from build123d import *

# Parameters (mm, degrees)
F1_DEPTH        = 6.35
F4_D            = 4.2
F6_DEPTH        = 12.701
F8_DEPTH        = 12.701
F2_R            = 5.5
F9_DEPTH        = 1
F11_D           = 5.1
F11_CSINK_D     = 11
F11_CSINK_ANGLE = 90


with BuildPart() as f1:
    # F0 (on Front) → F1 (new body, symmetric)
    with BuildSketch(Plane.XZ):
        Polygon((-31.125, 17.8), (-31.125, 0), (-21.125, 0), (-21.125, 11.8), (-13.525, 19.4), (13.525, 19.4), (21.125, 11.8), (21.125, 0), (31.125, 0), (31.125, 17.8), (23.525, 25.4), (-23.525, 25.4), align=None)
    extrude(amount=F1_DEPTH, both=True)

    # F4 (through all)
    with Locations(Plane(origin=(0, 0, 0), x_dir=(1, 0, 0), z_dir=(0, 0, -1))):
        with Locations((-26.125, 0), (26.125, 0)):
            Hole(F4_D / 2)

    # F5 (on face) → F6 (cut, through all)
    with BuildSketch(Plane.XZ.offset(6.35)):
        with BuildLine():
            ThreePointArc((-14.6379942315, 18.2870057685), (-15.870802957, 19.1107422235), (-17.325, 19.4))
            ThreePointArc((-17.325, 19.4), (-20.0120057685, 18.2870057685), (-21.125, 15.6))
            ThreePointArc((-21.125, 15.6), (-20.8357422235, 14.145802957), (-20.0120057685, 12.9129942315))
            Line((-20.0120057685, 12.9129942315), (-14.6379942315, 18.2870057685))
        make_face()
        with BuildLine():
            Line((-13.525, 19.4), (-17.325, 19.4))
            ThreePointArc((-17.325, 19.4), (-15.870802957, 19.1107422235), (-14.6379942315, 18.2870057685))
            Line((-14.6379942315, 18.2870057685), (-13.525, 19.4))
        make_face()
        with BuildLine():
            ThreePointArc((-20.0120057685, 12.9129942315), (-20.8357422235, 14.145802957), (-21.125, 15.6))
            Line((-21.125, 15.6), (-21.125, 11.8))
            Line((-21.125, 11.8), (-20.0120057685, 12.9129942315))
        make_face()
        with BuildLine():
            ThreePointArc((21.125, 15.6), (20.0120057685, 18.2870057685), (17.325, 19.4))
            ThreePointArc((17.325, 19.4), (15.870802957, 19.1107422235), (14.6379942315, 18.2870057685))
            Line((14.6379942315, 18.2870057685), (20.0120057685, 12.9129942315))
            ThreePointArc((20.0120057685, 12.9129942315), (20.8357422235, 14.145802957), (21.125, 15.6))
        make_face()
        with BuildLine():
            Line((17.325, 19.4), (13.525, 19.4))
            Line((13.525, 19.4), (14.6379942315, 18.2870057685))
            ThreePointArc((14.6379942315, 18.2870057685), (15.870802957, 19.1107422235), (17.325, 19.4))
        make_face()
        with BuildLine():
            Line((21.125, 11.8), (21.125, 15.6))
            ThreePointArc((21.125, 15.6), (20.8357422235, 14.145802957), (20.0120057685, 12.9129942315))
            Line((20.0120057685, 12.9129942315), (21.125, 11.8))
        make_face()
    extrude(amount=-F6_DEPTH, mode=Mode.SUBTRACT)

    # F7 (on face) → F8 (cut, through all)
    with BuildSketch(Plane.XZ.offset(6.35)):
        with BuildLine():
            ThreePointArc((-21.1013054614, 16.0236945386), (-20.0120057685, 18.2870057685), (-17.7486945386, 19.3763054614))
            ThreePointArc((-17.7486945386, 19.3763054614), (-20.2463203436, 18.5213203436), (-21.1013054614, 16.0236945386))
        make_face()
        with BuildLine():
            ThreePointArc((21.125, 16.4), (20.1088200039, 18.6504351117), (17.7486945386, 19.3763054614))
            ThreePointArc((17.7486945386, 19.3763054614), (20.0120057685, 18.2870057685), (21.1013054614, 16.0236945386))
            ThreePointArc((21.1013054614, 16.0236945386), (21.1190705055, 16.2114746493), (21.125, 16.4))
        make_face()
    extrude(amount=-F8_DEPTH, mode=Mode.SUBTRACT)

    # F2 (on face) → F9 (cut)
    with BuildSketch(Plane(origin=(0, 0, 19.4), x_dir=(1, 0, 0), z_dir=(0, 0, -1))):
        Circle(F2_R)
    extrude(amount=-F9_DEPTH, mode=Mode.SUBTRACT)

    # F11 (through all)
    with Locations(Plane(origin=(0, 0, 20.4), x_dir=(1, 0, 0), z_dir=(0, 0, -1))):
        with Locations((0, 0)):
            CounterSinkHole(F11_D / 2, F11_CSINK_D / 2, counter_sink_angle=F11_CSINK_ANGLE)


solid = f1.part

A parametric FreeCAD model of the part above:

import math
import FreeCAD as App
import Part
import Sketcher

V = App.Vector


def add_polygon(sketch, points):
    """Adds a closed chain of lines whose ends are joined by coincident constraints."""
    first, n = sketch.GeometryCount, len(points)
    for a, b in zip(points, points[1:] + points[:1]):
        sketch.addGeometry(Part.LineSegment(App.Vector(*a, 0), App.Vector(*b, 0)), False)
    for i in range(n):
        sketch.addConstraint(Sketcher.Constraint("Coincident", first + i, 2, first + (i + 1) % n, 1))

doc = App.newDocument("Part")
body = doc.addObject("PartDesign::Body", "Body")

sketch1 = body.newObject("Sketcher::SketchObject", "Sketch")
sketch1.AttachmentSupport = (doc.getObject("XZ_Plane"), [""])
sketch1.MapMode = "FlatFace"
add_polygon(sketch1, [(-31.125, 17.8), (-31.125, 0), (-21.125, 0), (-21.125, 11.8), (-13.525, 19.4), (13.525, 19.4), (21.125, 11.8), (21.125, 0), (31.125, 0), (31.125, 17.8), (23.525, 25.4), (-23.525, 25.4)])
sketch1.addConstraint([
    Sketcher.Constraint("Vertical", 0),
    Sketcher.Constraint("Horizontal", 1),
    Sketcher.Constraint("Vertical", 2),
    Sketcher.Constraint("Horizontal", 4),
    Sketcher.Constraint("Vertical", 6),
    Sketcher.Constraint("Horizontal", 7),
    Sketcher.Constraint("Vertical", 8),
    Sketcher.Constraint("Horizontal", 10),
    Sketcher.Constraint("Symmetric", 1, 2, 6, 2, -1, 1),
    Sketcher.Constraint("Symmetric", 0, 2, 7, 2, -2),
    Sketcher.Constraint("Perpendicular", 3, 5),
    Sketcher.Constraint("Parallel", 5, 9),
    Sketcher.Constraint("Perpendicular", 9, 11),
    Sketcher.Constraint("Horizontal", 2, 2, 5, 2),
    Sketcher.Constraint("Horizontal", 8, 2, 11, 2),
    Sketcher.Constraint("Equal", 3, 5),
    Sketcher.Constraint("Equal", 5, 9),
    Sketcher.Constraint("DistanceX", 1, 1, 1, 2, 10.0),
    Sketcher.Constraint("DistanceY", 0, 2, 0, 1, 17.8),
    Sketcher.Constraint("DistanceY", 2, 1, 2, 2, 11.8),
    Sketcher.Constraint("DistanceX", 4, 1, 4, 2, 27.05),
    Sketcher.Constraint("DistanceY", -1, 1, 3, 2, 19.4),
])
pad1 = body.newObject("PartDesign::Pad", "Pad")
pad1.Profile = sketch1
pad1.Length = 12.7
pad1.Midplane = True

sketch2 = body.newObject("Sketcher::SketchObject", "Sketch001")
sketch2.AttachmentSupport = (doc.getObject("XY_Plane"), [""])
sketch2.MapMode = "FlatFace"
sketch2.addGeometry([
    Part.Circle(V(-26.125, 0, 0), V(0, 0, 1), 2.1),
    Part.Circle(V(26.125, 0, 0), V(0, 0, 1), 2.1),
], False)
sketch2.addConstraint([
    Sketcher.Constraint("Equal", 0, 1),
    Sketcher.Constraint("Symmetric", 0, 3, 1, 3, -1, 1),
    Sketcher.Constraint("PointOnObject", 0, 3, -1),
    Sketcher.Constraint("Diameter", 0, 4.2),
    Sketcher.Constraint("DistanceX", 0, 3, 1, 3, 52.25),
])
doc.recompute()
hole = body.newObject("PartDesign::Hole", "Hole")
hole.Profile = sketch2
hole.ThreadType = "None"
hole.Diameter = 4.2
hole.DepthType = "ThroughAll"
hole.Reversed = True

sketch3 = body.newObject("Sketcher::SketchObject", "Sketch002")
sketch3.AttachmentSupport = (doc.getObject("XZ_Plane"), [""])
sketch3.MapMode = "FlatFace"
sketch3.AttachmentOffset = App.Placement(V(0, 0, 6.35), App.Rotation())
sketch3.addGeometry([
    Part.ArcOfCircle(Part.Circle(V(-17.325, 15.6, 0), V(0, 0, 1), 3.8), math.radians(90), math.radians(180)),
    Part.LineSegment(V(-21.125, 15.6, 0), V(-21.125, 11.8, 0)),
    Part.LineSegment(V(-21.125, 11.8, 0), V(-13.525, 19.4, 0)),
    Part.LineSegment(V(-13.525, 19.4, 0), V(-17.325, 19.4, 0)),
    Part.ArcOfCircle(Part.Circle(V(17.325, 15.6, 0), V(0, 0, 1), 3.8), math.radians(0), math.radians(90)),
    Part.LineSegment(V(17.325, 19.4, 0), V(13.525, 19.4, 0)),
    Part.LineSegment(V(13.525, 19.4, 0), V(21.125, 11.8, 0)),
    Part.LineSegment(V(21.125, 11.8, 0), V(21.125, 15.6, 0)),
], False)
sketch3.addConstraint([
    Sketcher.Constraint("Tangent", 0, 2, 1, 1),
    Sketcher.Constraint("Coincident", 1, 2, 2, 1),
    Sketcher.Constraint("Coincident", 2, 2, 3, 1),
    Sketcher.Constraint("Tangent", 3, 2, 0, 1),
    Sketcher.Constraint("Tangent", 4, 2, 5, 1),
    Sketcher.Constraint("Coincident", 5, 2, 6, 1),
    Sketcher.Constraint("Coincident", 6, 2, 7, 1),
    Sketcher.Constraint("Tangent", 7, 2, 4, 1),
    Sketcher.Constraint("Vertical", 1),
    Sketcher.Constraint("Horizontal", 3),
    Sketcher.Constraint("Horizontal", 5),
    Sketcher.Constraint("Vertical", 7),
    Sketcher.Constraint("Equal", 0, 4),
    Sketcher.Constraint("Symmetric", 0, 3, 4, 3, -2),
    Sketcher.Constraint("Perpendicular", 2, 6),
    Sketcher.Constraint("Horizontal", 1, 2, 6, 2),
    Sketcher.Constraint("Equal", 3, 5),
    Sketcher.Constraint("Radius", 0, 3.8),
    Sketcher.Constraint("DistanceX", 3, 2, 3, 1, 3.8),
    Sketcher.Constraint("DistanceY", -1, 1, 0, 3, 15.6),
    Sketcher.Constraint("DistanceX", 0, 3, 4, 3, 34.65),
])
pocket1 = body.newObject("PartDesign::Pocket", "Pocket")
pocket1.Profile = sketch3
pocket1.Type = "ThroughAll"

sketch4 = body.newObject("Sketcher::SketchObject", "Sketch003")
sketch4.AttachmentSupport = (doc.getObject("XZ_Plane"), [""])
sketch4.MapMode = "FlatFace"
sketch4.AttachmentOffset = App.Placement(V(0, 0, 6.35), App.Rotation())
sketch4.addGeometry([
    Part.ArcOfCircle(Part.Circle(V(-17.325, 15.6, 0), V(0, 0, 1), 3.8), math.radians(96.401708), math.radians(173.598292)),
    Part.ArcOfCircle(Part.Circle(V(-18.125, 16.4, 0), V(0, 0, 1), 3), math.radians(82.794114), math.radians(187.205886)),
    Part.ArcOfCircle(Part.Circle(V(18.125, 16.4, 0), V(0, 0, 1), 3), math.radians(0), math.radians(97.205886)),
    Part.ArcOfCircle(Part.Circle(V(17.325, 15.6, 0), V(0, 0, 1), 3.8), math.radians(6.401708), math.radians(83.598292)),
    Part.ArcOfCircle(Part.Circle(V(18.125, 16.4, 0), V(0, 0, 1), 3), math.radians(-7.205886), math.radians(0)),
], False)
sketch4.addConstraint([
    Sketcher.Constraint("Coincident", 0, 1, 1, 1),
    Sketcher.Constraint("Coincident", 1, 2, 0, 2),
    Sketcher.Constraint("Coincident", 2, 2, 3, 2),
    Sketcher.Constraint("Coincident", 3, 1, 4, 1),
    Sketcher.Constraint("Tangent", 4, 2, 2, 1),
    Sketcher.Constraint("Equal", 1, 2),
    Sketcher.Constraint("Equal", 0, 3),
    Sketcher.Constraint("Equal", 2, 4),
    Sketcher.Constraint("Symmetric", 1, 3, 2, 3, -2),
    Sketcher.Constraint("Symmetric", 0, 3, 3, 3, -2),
    Sketcher.Constraint("Horizontal", 2, 3, 4, 2),
    Sketcher.Constraint("Radius", 1, 3.0),
    Sketcher.Constraint("Radius", 0, 3.8),
    Sketcher.Constraint("DistanceY", -1, 1, 0, 3, 15.6),
    Sketcher.Constraint("DistanceY", -1, 1, 1, 3, 16.4),
    Sketcher.Constraint("DistanceX", 1, 3, 0, 3, 0.8),
    Sketcher.Constraint("DistanceX", 0, 3, 2, 3, 35.45),
])
pocket2 = body.newObject("PartDesign::Pocket", "Pocket001")
pocket2.Profile = sketch4
pocket2.Type = "ThroughAll"

sketch5 = body.newObject("Sketcher::SketchObject", "Sketch004")
sketch5.AttachmentSupport = (doc.getObject("XY_Plane"), [""])
sketch5.MapMode = "FlatFace"
sketch5.AttachmentOffset = App.Placement(V(0, 0, 19.4), App.Rotation())
sketch5.addGeometry(Part.Circle(V(0, 0, 0), V(0, 0, 1), 5.5), False)
sketch5.addConstraint([
    Sketcher.Constraint("Coincident", 0, 3, -1, 1),
    Sketcher.Constraint("Diameter", 0, 11.0),
])
pocket3 = body.newObject("PartDesign::Pocket", "Pocket002")
pocket3.Profile = sketch5
pocket3.Length = 1
pocket3.Reversed = True

sketch6 = body.newObject("Sketcher::SketchObject", "Sketch005")
sketch6.AttachmentSupport = (doc.getObject("XY_Plane"), [""])
sketch6.MapMode = "FlatFace"
sketch6.AttachmentOffset = App.Placement(V(0, 0, 20.4), App.Rotation())
sketch6.addGeometry(Part.Circle(V(0, 0, 0), V(0, 0, 1), 2.55), False)
sketch6.addConstraint([
    Sketcher.Constraint("Coincident", 0, 3, -1, 1),
    Sketcher.Constraint("Diameter", 0, 5.1),
])
doc.recompute()
hole2 = body.newObject("PartDesign::Hole", "Hole001")
hole2.Profile = sketch6
hole2.ThreadType = "None"
hole2.Diameter = 5.1
hole2.DepthType = "ThroughAll"
hole2.HoleCutType = "Countersink"
hole2.HoleCutDiameter = 11
hole2.HoleCutCountersinkAngle = 90
hole2.Reversed = True

doc.recompute()
